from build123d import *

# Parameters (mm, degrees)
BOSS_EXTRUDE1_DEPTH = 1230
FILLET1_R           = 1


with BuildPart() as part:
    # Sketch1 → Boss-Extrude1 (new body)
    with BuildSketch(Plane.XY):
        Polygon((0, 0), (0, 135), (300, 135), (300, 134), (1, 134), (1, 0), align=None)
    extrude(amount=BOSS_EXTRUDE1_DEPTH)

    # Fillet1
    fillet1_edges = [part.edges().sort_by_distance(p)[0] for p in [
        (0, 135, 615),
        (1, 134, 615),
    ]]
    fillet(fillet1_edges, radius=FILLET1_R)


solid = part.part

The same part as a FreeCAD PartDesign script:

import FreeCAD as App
import Part
import Sketcher
from FreeCAD import Vector


def edges_at(feature, points):
    """Names of the edges that pass closest to the given points."""
    edges = feature.Shape.Edges
    near = lambda p: min(range(len(edges)), key=lambda i: edges[i].distToShape(Part.Vertex(*p))[0])
    return sorted({f"Edge{near(p) + 1}" for p in points})

doc = App.newDocument("Part")
body = doc.addObject("PartDesign::Body", "Body")

sketch1 = body.newObject("Sketcher::SketchObject", "Sketch")
sketch1.AttachmentSupport = (doc.getObject("XY_Plane"), [""])
sketch1.MapMode = "FlatFace"
sketch1.addGeometry(Part.LineSegment(Vector(0, 135, 0), Vector(0, 0, 0)), False)
sketch1.addGeometry(Part.LineSegment(Vector(0, 0, 0), Vector(1, 0, 0)), False)
sketch1.addGeometry(Part.LineSegment(Vector(1, 0, 0), Vector(1, 134, 0)), False)
sketch1.addGeometry(Part.LineSegment(Vector(1, 134, 0), Vector(300, 134, 0)), False)
sketch1.addGeometry(Part.LineSegment(Vector(300, 134, 0), Vector(300, 135, 0)), False)
sketch1.addGeometry(Part.LineSegment(Vector(300, 135, 0), Vector(0, 135, 0)), False)
sketch1.addConstraint(Sketcher.Constraint("Coincident", 0, 2, 1, 1))
sketch1.addConstraint(Sketcher.Constraint("Coincident", 1, 2, 2, 1))
sketch1.addConstraint(Sketcher.Constraint("Coincident", 2, 2, 3, 1))
sketch1.addConstraint(Sketcher.Constraint("Coincident", 3, 2, 4, 1))
sketch1.addConstraint(Sketcher.Constraint("Coincident", 4, 2, 5, 1))
sketch1.addConstraint(Sketcher.Constraint("Coincident", 5, 2, 0, 1))
sketch1.addConstraint(Sketcher.Constraint("Vertical", 0))
sketch1.addConstraint(Sketcher.Constraint("Horizontal", 1))
sketch1.addConstraint(Sketcher.Constraint("Vertical", 2))
sketch1.addConstraint(Sketcher.Constraint("Horizontal", 3))
sketch1.addConstraint(Sketcher.Constraint("Vertical", 4))
sketch1.addConstraint(Sketcher.Constraint("Horizontal", 5))
sketch1.addConstraint(Sketcher.Constraint("Coincident", 0, 2, -1, 1))
sketch1.addConstraint(Sketcher.Constraint("Equal", 1, 4))
sketch1.addConstraint(Sketcher.Constraint("DistanceX", 1, 1, 1, 2, 1.0))
sketch1.addConstraint(Sketcher.Constraint("DistanceX", 3, 1, 3, 2, 299.0))
sketch1.addConstraint(Sketcher.Constraint("DistanceY", 0, 2, 0, 1, 135.0))
pad1 = body.newObject("PartDesign::Pad", "Pad")
pad1.Profile = sketch1
pad1.Length = 1230
doc.recompute()

fillet = body.newObject("PartDesign::Fillet", "Fillet")
fillet.Base = (pad1, edges_at(pad1, [(0, 135, 615), (1, 134, 615)]))
fillet.Radius = 1

doc.recompute()
